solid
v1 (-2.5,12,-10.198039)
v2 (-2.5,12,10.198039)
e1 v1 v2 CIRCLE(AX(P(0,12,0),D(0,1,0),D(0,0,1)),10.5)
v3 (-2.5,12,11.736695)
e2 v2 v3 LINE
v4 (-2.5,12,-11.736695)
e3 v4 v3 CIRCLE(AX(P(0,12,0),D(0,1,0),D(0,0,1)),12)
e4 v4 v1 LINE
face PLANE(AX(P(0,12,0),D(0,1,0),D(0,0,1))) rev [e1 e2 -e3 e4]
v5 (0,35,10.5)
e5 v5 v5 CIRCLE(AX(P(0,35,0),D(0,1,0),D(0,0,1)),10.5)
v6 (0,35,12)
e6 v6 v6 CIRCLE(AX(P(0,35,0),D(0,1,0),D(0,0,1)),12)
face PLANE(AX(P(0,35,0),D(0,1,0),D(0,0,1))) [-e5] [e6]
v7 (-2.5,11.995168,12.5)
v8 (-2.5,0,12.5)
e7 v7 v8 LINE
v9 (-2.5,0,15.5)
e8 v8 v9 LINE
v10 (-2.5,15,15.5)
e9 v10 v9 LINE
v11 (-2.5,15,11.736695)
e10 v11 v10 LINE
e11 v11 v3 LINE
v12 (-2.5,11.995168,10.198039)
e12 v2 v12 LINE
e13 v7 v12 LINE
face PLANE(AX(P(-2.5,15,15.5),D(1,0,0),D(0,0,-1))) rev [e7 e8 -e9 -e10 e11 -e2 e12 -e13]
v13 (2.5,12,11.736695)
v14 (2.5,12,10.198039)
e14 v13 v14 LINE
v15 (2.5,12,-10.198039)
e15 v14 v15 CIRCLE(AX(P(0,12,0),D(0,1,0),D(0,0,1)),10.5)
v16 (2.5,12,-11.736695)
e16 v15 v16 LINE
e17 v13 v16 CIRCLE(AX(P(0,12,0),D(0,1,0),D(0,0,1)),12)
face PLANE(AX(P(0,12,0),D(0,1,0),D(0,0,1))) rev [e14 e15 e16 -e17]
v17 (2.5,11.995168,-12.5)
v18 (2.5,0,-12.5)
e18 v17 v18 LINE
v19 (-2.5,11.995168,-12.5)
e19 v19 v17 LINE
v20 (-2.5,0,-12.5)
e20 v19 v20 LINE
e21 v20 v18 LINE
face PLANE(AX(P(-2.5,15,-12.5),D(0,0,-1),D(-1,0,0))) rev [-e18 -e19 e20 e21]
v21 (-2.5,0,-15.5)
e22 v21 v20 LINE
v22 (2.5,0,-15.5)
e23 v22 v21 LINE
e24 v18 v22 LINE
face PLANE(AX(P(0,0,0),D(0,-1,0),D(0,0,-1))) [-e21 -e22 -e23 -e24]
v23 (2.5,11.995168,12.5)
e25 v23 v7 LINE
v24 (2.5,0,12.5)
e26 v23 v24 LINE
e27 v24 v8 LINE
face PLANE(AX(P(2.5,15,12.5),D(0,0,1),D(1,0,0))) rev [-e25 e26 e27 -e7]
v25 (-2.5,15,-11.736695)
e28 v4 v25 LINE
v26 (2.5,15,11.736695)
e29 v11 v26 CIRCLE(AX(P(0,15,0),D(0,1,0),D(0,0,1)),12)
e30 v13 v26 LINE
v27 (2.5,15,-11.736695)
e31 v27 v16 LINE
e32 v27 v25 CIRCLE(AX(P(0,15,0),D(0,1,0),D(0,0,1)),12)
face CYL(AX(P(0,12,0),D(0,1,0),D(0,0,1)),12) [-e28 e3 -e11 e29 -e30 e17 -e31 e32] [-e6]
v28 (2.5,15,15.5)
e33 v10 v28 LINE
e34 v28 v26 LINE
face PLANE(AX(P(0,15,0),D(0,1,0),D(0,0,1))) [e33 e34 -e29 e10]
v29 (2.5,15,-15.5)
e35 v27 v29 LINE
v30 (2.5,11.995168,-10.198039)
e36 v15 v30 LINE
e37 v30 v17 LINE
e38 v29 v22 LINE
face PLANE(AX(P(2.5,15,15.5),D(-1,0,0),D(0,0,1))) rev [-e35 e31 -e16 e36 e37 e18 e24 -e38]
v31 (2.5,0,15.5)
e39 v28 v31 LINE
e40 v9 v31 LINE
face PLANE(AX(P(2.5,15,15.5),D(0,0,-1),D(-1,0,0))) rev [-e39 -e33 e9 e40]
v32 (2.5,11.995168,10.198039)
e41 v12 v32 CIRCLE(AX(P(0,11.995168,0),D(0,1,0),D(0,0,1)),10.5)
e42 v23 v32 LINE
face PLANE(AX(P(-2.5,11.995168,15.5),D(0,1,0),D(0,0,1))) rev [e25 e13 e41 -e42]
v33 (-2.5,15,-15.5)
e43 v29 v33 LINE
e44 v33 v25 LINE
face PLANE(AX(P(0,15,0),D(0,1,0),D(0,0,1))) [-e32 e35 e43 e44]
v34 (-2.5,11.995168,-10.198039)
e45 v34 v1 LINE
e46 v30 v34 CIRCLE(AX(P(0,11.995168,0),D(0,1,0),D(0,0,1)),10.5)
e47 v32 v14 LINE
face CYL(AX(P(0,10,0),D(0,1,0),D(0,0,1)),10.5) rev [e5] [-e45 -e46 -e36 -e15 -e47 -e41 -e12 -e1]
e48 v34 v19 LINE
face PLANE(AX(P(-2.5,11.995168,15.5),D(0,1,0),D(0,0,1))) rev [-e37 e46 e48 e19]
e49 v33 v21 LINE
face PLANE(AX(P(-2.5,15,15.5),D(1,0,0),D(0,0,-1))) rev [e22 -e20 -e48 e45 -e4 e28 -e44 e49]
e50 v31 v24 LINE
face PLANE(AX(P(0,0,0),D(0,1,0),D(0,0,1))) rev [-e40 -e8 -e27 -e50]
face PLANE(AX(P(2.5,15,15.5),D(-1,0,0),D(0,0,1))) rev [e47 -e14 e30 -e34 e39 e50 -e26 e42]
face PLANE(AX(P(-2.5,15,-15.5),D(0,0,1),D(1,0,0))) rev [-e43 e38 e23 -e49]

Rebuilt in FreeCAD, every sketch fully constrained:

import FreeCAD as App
import Part
import Sketcher
from FreeCAD import Vector


def add_polygon(sketch, points):
    """Adds a closed chain of lines whose ends are joined by coincident constraints."""
    first, n = sketch.GeometryCount, len(points)
    for a, b in zip(points, points[1:] + points[:1]):
        sketch.addGeometry(Part.LineSegment(App.Vector(*a, 0), App.Vector(*b, 0)), False)
    for i in range(n):
        sketch.addConstraint(Sketcher.Constraint("Coincident", first + i, 2, first + (i + 1) % n, 1))

doc = App.newDocument("Part")
body = doc.addObject("PartDesign::Body", "Body")

# Sketch on XZ plane
sketch1 = body.newObject("Sketcher::SketchObject", "Sketch")
sketch1.AttachmentSupport = (doc.getObject("XZ_Plane"), [""])
sketch1.MapMode = "FlatFace"
add_polygon(sketch1, [(-2.5, 12.5), (-2.5, 15.5), (2.5, 15.5), (2.5, 12.5)])  # lines 0-3
sketch1.addConstraint([
    Sketcher.Constraint("Vertical", 0),
    Sketcher.Constraint("Horizontal", 1),
    Sketcher.Constraint("Vertical", 2),
    Sketcher.Constraint("Horizontal", 3),
    Sketcher.Constraint("DistanceX", 1, 1, 1, 2, 5.0),
    Sketcher.Constraint("DistanceY", 0, 1, 0, 2, 3.0),
    Sketcher.Constraint("DistanceX", 0, 2, -1, 1, 2.5),
    Sketcher.Constraint("DistanceY", -1, 1, 0, 2, 15.5),
])
pad1 = body.newObject("PartDesign::Pad", "Pad")
pad1.Profile = sketch1
pad1.Length = 15
pad1.Reversed = True
body2 = doc.addObject("PartDesign::Body", "Body001")

# Sketch on XZ plane
sketch2 = body2.newObject("Sketcher::SketchObject", "Sketch001")
sketch2.AttachmentSupport = (doc.getObject("XZ_Plane001"), [""])
sketch2.MapMode = "FlatFace"
add_polygon(sketch2, [(-2.5, -15.5), (-2.5, -12.5), (2.5, -12.5), (2.5, -15.5)])  # lines 0-3
sketch2.addConstraint([
    Sketcher.Constraint("Vertical", 0),
    Sketcher.Constraint("Horizontal", 1),
    Sketcher.Constraint("Vertical", 2),
    Sketcher.Constraint("Horizontal", 3),
    Sketcher.Constraint("DistanceX", 1, 1, 1, 2, 5.0),
    Sketcher.Constraint("DistanceY", 0, 1, 0, 2, 3.0),
    Sketcher.Constraint("DistanceX", 0, 2, -1, 1, 2.5),
    Sketcher.Constraint("DistanceY", 0, 2, -1, 1, 12.5),
])
pad2 = body2.newObject("PartDesign::Pad", "Pad001")
pad2.Profile = sketch2
pad2.Length = 15
pad2.Reversed = True
body3 = doc.addObject("PartDesign::Body", "Body002")

# Sketch on XZ plane
sketch3 = body3.newObject("Sketcher::SketchObject", "Sketch002")
sketch3.AttachmentSupport = (doc.getObject("XZ_Plane002"), [""])
sketch3.MapMode = "FlatFace"
sketch3.AttachmentOffset = App.Placement(Vector(0, 0, -15), App.Rotation())
sketch3.addGeometry(Part.Circle(Vector(0, 0, 0), Vector(0, 0, 1), 12), False)
sketch3.addConstraint([
    Sketcher.Constraint("Coincident", 0, 3, -1, 1),
    Sketcher.Constraint("Diameter", 0, 24.0),
])
pad3 = body3.newObject("PartDesign::Pad", "Pad002")
pad3.Profile = sketch3
pad3.Type = "TwoLengths"
pad3.Length = 20
pad3.Length2 = 3
pad3.Reversed = True
body.AllowCompound = True
doc.recompute()

boolean = body.newObject("PartDesign::Boolean", "Boolean")
boolean.Type = "Fuse"
boolean.addObjects([body2])
doc.recompute()

boolean2 = body.newObject("PartDesign::Boolean", "Boolean001")
boolean2.Type = "Fuse"
boolean2.addObjects([body3])

# Sketch on XY plane
sketch4 = body.newObject("Sketcher::SketchObject", "Sketch003")
sketch4.AttachmentSupport = (doc.getObject("XY_Plane"), [""])
sketch4.MapMode = "FlatFace"
sketch4.AttachmentOffset = App.Placement(Vector(0, 0, -12.5), App.Rotation())
add_polygon(sketch4, [(-2.5, 15), (-2.5, 12), (2.5, 12), (2.5, 15)])  # lines 0-3
sketch4.addConstraint([
    Sketcher.Constraint("Vertical", 0),
    Sketcher.Constraint("Horizontal", 1),
    Sketcher.Constraint("Vertical", 2),
    Sketcher.Constraint("Horizontal", 3),
    Sketcher.Constraint("DistanceX", 1, 1, 1, 2, 5.0),
    Sketcher.Constraint("DistanceY", -1, 1, 2, 2, 15.0),
    Sketcher.Constraint("DistanceX", 0, 2, -1, 1, 2.5),
    Sketcher.Constraint("DistanceY", 0, 2, 0, 1, 3.004832),
])
pad4 = body.newObject("PartDesign::Pad", "Pad003")
pad4.Profile = sketch4
pad4.Length = 28

# Sketch on XZ plane
sketch5 = body.newObject("Sketcher::SketchObject", "Sketch004")
sketch5.AttachmentSupport = (doc.getObject("XZ_Plane"), [""])
sketch5.MapMode = "FlatFace"
sketch5.AttachmentOffset = App.Placement(Vector(0, 0, -35), App.Rotation())
sketch5.addGeometry(Part.Circle(Vector(0, 0, 0), Vector(0, 0, 1), 10), False)
sketch5.addConstraint([
    Sketcher.Constraint("Coincident", 0, 3, -1, 1),
    Sketcher.Constraint("Diameter", 0, 21.0),
])
pocket1 = body.newObject("PartDesign::Pocket", "Pocket")
pocket1.Profile = sketch5
pocket1.Length = 25
pocket1.Reversed = True

doc.recompute()
